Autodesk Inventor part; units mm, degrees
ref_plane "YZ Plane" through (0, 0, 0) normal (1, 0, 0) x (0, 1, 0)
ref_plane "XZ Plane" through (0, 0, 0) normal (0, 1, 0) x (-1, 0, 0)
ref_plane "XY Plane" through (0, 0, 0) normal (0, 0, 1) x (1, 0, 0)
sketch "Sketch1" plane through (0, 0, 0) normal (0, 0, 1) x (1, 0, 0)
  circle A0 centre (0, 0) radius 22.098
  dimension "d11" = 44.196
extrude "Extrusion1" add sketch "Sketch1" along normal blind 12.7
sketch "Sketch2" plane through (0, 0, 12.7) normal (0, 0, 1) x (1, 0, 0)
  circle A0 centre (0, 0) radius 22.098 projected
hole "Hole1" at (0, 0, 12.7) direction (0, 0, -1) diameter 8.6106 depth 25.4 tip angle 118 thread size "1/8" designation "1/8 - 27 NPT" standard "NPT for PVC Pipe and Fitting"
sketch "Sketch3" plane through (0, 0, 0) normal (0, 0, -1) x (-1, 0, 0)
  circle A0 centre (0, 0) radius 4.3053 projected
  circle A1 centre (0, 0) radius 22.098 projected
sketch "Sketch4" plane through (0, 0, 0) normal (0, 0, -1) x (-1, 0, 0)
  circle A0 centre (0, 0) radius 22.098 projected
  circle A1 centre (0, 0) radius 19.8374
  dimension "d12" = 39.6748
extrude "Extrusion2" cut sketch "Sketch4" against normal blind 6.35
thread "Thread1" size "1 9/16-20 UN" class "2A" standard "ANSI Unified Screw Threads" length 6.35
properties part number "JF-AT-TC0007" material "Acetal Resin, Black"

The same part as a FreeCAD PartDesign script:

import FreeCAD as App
import Part
import Sketcher
Q = App.Units.Quantity

doc = App.newDocument("Part")
body = doc.addObject("PartDesign::Body", "Body")

sketch1 = body.newObject("Sketcher::SketchObject", "Sketch")
sketch1.AttachmentSupport = (doc.getObject("XY_Plane"), [""])
sketch1.MapMode = "FlatFace"
sketch1.addGeometry(Part.Circle(App.Vector(0, 0, 0), App.Vector(0, 0, 1), 22), False)
sketch1.addConstraint(Sketcher.Constraint("Coincident", 0, 3, -1, 1))
sketch1.addConstraint(Sketcher.Constraint("Diameter", 0, Q("1.74 in")))
pad1 = body.newObject("PartDesign::Pad", "Pad")
pad1.Profile = sketch1
pad1.Length = Q("0.5 in")

sketch2 = body.newObject("Sketcher::SketchObject", "Sketch001")
sketch2.AttachmentSupport = (doc.getObject("XY_Plane"), [""])
sketch2.MapMode = "FlatFace"
sketch2.AttachmentOffset = App.Placement(App.Vector(0, 0, 0.5 * 25.4), App.Rotation())
sketch2.addGeometry(Part.Circle(App.Vector(0, 0, 0), App.Vector(0, 0, 1), 4.3), False)
sketch2.addConstraint(Sketcher.Constraint("Coincident", 0, 3, -1, 1))
sketch2.addConstraint(Sketcher.Constraint("Diameter", 0, Q("0.339 in")))
doc.recompute()
hole = body.newObject("PartDesign::Hole", "Hole")
hole.Profile = sketch2
hole.ThreadType = "None"
hole.Diameter = Q("0.339 in")
hole.DepthType = "Dimension"
hole.Depth = Q("1 in")
hole.DrillPoint = "Angled"
hole.DrillPointAngle = 118

sketch3 = body.newObject("Sketcher::SketchObject", "Sketch002")
sketch3.AttachmentSupport = (doc.getObject("XY_Plane"), [""])
sketch3.MapMode = "FlatFace"
sketch3.addGeometry(Part.Circle(App.Vector(0, 0, 0), App.Vector(0, 0, 1), 22), False)
sketch3.addGeometry(Part.Circle(App.Vector(0, 0, 0), App.Vector(0, 0, 1), 20), False)
sketch3.addConstraint(Sketcher.Constraint("Coincident", 0, 3, -1, 1))
sketch3.addConstraint(Sketcher.Constraint("Coincident", 1, 3, -1, 1))
sketch3.addConstraint(Sketcher.Constraint("Diameter", 1, Q("1.562 in")))
sketch3.addConstraint(Sketcher.Constraint("Diameter", 0, Q("1.74 in")))
pocket1 = body.newObject("PartDesign::Pocket", "Pocket")
pocket1.Profile = sketch3
pocket1.Length = Q("0.25 in")
pocket1.Reversed = True

doc.recompute()
